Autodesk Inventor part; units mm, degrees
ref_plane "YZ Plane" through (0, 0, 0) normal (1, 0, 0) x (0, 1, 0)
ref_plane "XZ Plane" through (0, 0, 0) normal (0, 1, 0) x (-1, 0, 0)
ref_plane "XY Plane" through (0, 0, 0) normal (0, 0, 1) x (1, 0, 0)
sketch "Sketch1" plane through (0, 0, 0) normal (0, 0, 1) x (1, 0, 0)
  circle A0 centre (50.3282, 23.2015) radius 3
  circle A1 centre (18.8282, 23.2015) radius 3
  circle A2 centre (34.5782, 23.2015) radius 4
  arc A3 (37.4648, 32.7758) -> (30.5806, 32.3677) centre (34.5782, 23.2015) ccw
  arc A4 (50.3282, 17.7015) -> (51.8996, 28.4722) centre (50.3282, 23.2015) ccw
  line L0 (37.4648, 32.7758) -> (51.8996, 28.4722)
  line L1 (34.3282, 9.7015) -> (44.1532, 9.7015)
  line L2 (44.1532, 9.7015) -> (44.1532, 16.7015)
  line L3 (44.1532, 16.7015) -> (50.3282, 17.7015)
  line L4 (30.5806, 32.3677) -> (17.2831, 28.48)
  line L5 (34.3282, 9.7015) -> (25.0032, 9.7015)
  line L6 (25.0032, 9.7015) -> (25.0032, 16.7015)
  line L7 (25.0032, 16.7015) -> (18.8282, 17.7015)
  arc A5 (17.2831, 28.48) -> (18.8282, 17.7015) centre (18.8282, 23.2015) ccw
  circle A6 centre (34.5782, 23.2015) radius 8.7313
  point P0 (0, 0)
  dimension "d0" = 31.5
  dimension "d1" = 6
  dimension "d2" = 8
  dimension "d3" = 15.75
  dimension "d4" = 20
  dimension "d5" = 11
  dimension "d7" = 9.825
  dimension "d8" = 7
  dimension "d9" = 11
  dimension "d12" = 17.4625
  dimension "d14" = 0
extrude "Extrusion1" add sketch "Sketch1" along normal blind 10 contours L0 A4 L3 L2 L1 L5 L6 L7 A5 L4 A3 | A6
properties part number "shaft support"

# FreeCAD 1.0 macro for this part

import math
import FreeCAD as App
import Part
import Sketcher
from FreeCAD import Vector
Q = App.Units.Quantity

doc = App.newDocument("Part")
body = doc.addObject("PartDesign::Body", "Body")

# Sketch on XY plane
sketch1 = doc.addObject("Sketcher::SketchObject", "Sketch")
body.addObject(sketch1)
sketch1.AttachmentSupport = (doc.XY_Plane, [""])
sketch1.MapMode = "FlatFace"
sketch1.addGeometry([
    Part.LineSegment(Vector(51.8996, 28.4722, 0), Vector(37.4648, 32.7758, 0)),  # 0
    Part.ArcOfCircle(Part.Circle(Vector(34.5782, 23.2015, 0), Vector(0, 0, 1), 9.999984), math.radians(73.222223), math.radians(113.563172)),  # 1
    Part.LineSegment(Vector(30.5806, 32.3677, 0), Vector(17.2831, 28.48, 0)),  # 2
    Part.ArcOfCircle(Part.Circle(Vector(18.8282, 23.2015, 0), Vector(0, 0, 1), 5.499991), math.radians(106.315584), math.radians(270)),  # 3
    Part.LineSegment(Vector(18.8282, 17.7015, 0), Vector(25.0032, 16.7015, 0)),  # 4
    Part.LineSegment(Vector(25.0032, 16.7015, 0), Vector(25.0032, 9.7015, 0)),  # 5
    Part.LineSegment(Vector(25.0032, 9.7015, 0), Vector(44.1532, 9.7015, 0)),  # 6
    Part.LineSegment(Vector(44.1532, 9.7015, 0), Vector(44.1532, 16.7015, 0)),  # 7
    Part.LineSegment(Vector(44.1532, 16.7015, 0), Vector(50.3282, 17.7015, 0)),  # 8
    Part.ArcOfCircle(Part.Circle(Vector(50.3282, 23.2015, 0), Vector(0, 0, 1), 5.5), math.radians(-90), math.radians(73.398641)),  # 9
    Part.Circle(Vector(18.8282, 23.2015, 0), Vector(0, 0, 1), 3),  # 10
    Part.Circle(Vector(50.3282, 23.2015, 0), Vector(0, 0, 1), 3),  # 11
    Part.Circle(Vector(34.5782, 23.2015, 0), Vector(0, 0, 1), 4),  # 12
], False)
sketch1.addConstraint([
    Sketcher.Constraint("Coincident", 0, 2, 1, 1),
    Sketcher.Constraint("Coincident", 1, 2, 2, 1),
    Sketcher.Constraint("Coincident", 2, 2, 3, 1),
    Sketcher.Constraint("Coincident", 3, 2, 4, 1),
    Sketcher.Constraint("Coincident", 4, 2, 5, 1),
    Sketcher.Constraint("Coincident", 5, 2, 6, 1),
    Sketcher.Constraint("Coincident", 6, 2, 7, 1),
    Sketcher.Constraint("Coincident", 7, 2, 8, 1),
    Sketcher.Constraint("Coincident", 8, 2, 9, 1),
    Sketcher.Constraint("Coincident", 9, 2, 0, 1),
    Sketcher.Constraint("Vertical", 5),
    Sketcher.Constraint("Horizontal", 6),
    Sketcher.Constraint("Vertical", 7),
    Sketcher.Constraint("Coincident", 10, 3, 3, 3),
    Sketcher.Constraint("Coincident", 11, 3, 9, 3),
    Sketcher.Constraint("Coincident", 12, 3, 1, 3),
    Sketcher.Constraint("Diameter", 10, Q("6 mm")),
    Sketcher.Constraint("Diameter", 11, Q("6 mm")),
    Sketcher.Constraint("Diameter", 12, Q("8 mm")),
    Sketcher.Constraint("Radius", 1, Q("10 mm")),
    Sketcher.Constraint("Radius", 3, Q("5.5 mm")),
    Sketcher.Constraint("Radius", 9, Q("5.5 mm")),
    Sketcher.Constraint("DistanceY", 5, 2, 5, 1, Q("7 mm")),
    Sketcher.Constraint("DistanceY", 7, 1, 7, 2, Q("7 mm")),
    Sketcher.Constraint("DistanceY", 5, 2, 3, 2, Q("8 mm")),
    Sketcher.Constraint("DistanceY", 6, 2, 8, 2, Q("8 mm")),
    Sketcher.Constraint("DistanceX", 3, 3, 9, 3, Q("31.5 mm")),
    Sketcher.Constraint("DistanceX", 3, 3, 1, 3, Q("15.75 mm")),
    Sketcher.Constraint("DistanceX", 3, 2, 1, 3, Q("15.75 mm")),
    Sketcher.Constraint("DistanceX", 1, 3, 8, 2, Q("15.75 mm")),
    Sketcher.Constraint("DistanceX", 6, 1, 6, 2, Q("19.15 mm")),
    Sketcher.Constraint("DistanceY", 3, 2, 1, 3, Q("5.5 mm")),
    Sketcher.Constraint("DistanceY", -1, 1, 2, 2, Q("28.48 mm")),
    Sketcher.Constraint("DistanceX", -1, 1, 2, 2, Q("17.283 mm")),
    Sketcher.Constraint("DistanceY", 1, 2, 0, 2, Q("0.408 mm")),
    Sketcher.Constraint("DistanceX", 2, 2, 3, 3, Q("1.545 mm")),
    Sketcher.Constraint("DistanceX", 3, 2, 4, 2, Q("6.175 mm")),
    Sketcher.Constraint("Distance", 0, Q("15.0627 mm")),
    Sketcher.Constraint("Distance", 2, Q("13.8542 mm")),
])
pad1 = doc.addObject("PartDesign::Pad", "Pad")
body.addObject(pad1)
pad1.Profile = sketch1
pad1.Length = 10

doc.recompute()
